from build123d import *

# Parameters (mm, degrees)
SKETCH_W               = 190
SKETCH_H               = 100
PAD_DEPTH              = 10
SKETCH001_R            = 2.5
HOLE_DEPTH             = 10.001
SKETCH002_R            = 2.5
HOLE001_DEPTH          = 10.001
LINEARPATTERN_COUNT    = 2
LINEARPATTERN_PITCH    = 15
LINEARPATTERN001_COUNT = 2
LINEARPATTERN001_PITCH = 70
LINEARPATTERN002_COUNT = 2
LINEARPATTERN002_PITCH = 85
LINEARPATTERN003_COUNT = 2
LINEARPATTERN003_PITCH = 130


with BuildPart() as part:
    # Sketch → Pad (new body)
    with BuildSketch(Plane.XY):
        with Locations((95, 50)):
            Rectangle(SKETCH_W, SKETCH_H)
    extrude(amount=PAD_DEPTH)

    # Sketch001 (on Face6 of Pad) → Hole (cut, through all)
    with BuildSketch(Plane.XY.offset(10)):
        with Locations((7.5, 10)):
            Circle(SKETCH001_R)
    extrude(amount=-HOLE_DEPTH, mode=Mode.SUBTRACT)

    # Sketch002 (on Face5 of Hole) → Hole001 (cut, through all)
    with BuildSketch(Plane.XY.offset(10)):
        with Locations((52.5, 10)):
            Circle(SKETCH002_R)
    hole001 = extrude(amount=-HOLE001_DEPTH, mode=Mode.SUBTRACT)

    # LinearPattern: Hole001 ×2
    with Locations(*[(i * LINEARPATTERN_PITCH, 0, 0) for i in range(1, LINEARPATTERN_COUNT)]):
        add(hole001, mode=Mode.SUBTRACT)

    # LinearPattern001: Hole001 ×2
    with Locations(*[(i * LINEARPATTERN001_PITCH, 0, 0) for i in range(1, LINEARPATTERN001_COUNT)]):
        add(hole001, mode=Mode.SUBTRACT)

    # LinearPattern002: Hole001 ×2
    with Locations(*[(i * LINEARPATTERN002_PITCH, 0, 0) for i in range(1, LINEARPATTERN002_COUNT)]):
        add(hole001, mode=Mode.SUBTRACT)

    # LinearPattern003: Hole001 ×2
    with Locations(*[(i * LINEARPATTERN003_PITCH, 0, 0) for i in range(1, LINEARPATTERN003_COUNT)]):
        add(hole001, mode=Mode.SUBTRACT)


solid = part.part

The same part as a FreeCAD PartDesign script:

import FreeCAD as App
import Part
import Sketcher
from FreeCAD import Vector

doc = App.newDocument("Part")
body = doc.addObject("PartDesign::Body", "Body")

sketch1 = body.newObject("Sketcher::SketchObject", "Sketch")
sketch1.AttachmentSupport = (doc.getObject("XY_Plane"), [""])
sketch1.MapMode = "FlatFace"
sketch1.addGeometry(Part.LineSegment(Vector(0, 100, 0), Vector(0, 0, 0)), False)
sketch1.addGeometry(Part.LineSegment(Vector(0, 0, 0), Vector(190, 0, 0)), False)
sketch1.addGeometry(Part.LineSegment(Vector(190, 0, 0), Vector(190, 100, 0)), False)
sketch1.addGeometry(Part.LineSegment(Vector(190, 100, 0), Vector(0, 100, 0)), False)
sketch1.addConstraint(Sketcher.Constraint("Coincident", 0, 2, 1, 1))
sketch1.addConstraint(Sketcher.Constraint("Coincident", 1, 2, 2, 1))
sketch1.addConstraint(Sketcher.Constraint("Coincident", 2, 2, 3, 1))
sketch1.addConstraint(Sketcher.Constraint("Coincident", 3, 2, 0, 1))
sketch1.addConstraint(Sketcher.Constraint("Vertical", 0))
sketch1.addConstraint(Sketcher.Constraint("Horizontal", 1))
sketch1.addConstraint(Sketcher.Constraint("Vertical", 2))
sketch1.addConstraint(Sketcher.Constraint("Horizontal", 3))
sketch1.addConstraint(Sketcher.Constraint("Coincident", 0, 2, -1, 1))
sketch1.addConstraint(Sketcher.Constraint("DistanceX", 1, 1, 1, 2, 190.0))
sketch1.addConstraint(Sketcher.Constraint("DistanceY", 0, 2, 0, 1, 100.0))
pad1 = body.newObject("PartDesign::Pad", "Pad")
pad1.Profile = sketch1
pad1.Length = 10

sketch2 = body.newObject("Sketcher::SketchObject", "Sketch001")
sketch2.AttachmentSupport = (doc.getObject("XY_Plane"), [""])
sketch2.MapMode = "FlatFace"
sketch2.AttachmentOffset = App.Placement(Vector(0, 0, 10), App.Rotation())
sketch2.addGeometry(Part.Circle(Vector(7.5, 10, 0), Vector(0, 0, 1), 2.5), False)
sketch2.addConstraint(Sketcher.Constraint("Diameter", 0, 5.0))
sketch2.addConstraint(Sketcher.Constraint("DistanceY", -1, 1, 0, 3, 10.0))
sketch2.addConstraint(Sketcher.Constraint("DistanceX", -1, 1, 0, 3, 7.5))
pocket1 = body.newObject("PartDesign::Pocket", "Pocket")
pocket1.Profile = sketch2
pocket1.Type = "ThroughAll"

sketch3 = body.newObject("Sketcher::SketchObject", "Sketch002")
sketch3.AttachmentSupport = (doc.getObject("XY_Plane"), [""])
sketch3.MapMode = "FlatFace"
sketch3.AttachmentOffset = App.Placement(Vector(0, 0, 10), App.Rotation())
sketch3.addGeometry(Part.Circle(Vector(52.5, 10, 0), Vector(0, 0, 1), 2.5), False)
sketch3.addConstraint(Sketcher.Constraint("Diameter", 0, 5.0))
sketch3.addConstraint(Sketcher.Constraint("DistanceY", -1, 1, 0, 3, 10.0))
sketch3.addConstraint(Sketcher.Constraint("DistanceX", -1, 1, 0, 3, 52.5))
pocket2 = body.newObject("PartDesign::Pocket", "Pocket001")
pocket2.Profile = sketch3
pocket2.Type = "ThroughAll"
doc.recompute()

linearpattern = body.newObject("PartDesign::LinearPattern", "LinearPattern")
linearpattern.Originals = [pocket2]
linearpattern.Direction = (doc.getObject("X_Axis"), [""])
linearpattern.Mode = "offset"
linearpattern.Offset = 15
linearpattern.Occurrences = 2
body.Tip = linearpattern
doc.recompute()

linearpattern2 = body.newObject("PartDesign::LinearPattern", "LinearPattern001")
linearpattern2.Originals = [pocket2]
linearpattern2.Direction = (doc.getObject("X_Axis"), [""])
linearpattern2.Mode = "offset"
linearpattern2.Offset = 70
linearpattern2.Occurrences = 2
body.Tip = linearpattern2
doc.recompute()

linearpattern3 = body.newObject("PartDesign::LinearPattern", "LinearPattern002")
linearpattern3.Originals = [pocket2]
linearpattern3.Direction = (doc.getObject("X_Axis"), [""])
linearpattern3.Mode = "offset"
linearpattern3.Offset = 85
linearpattern3.Occurrences = 2
body.Tip = linearpattern3
doc.recompute()

linearpattern4 = body.newObject("PartDesign::LinearPattern", "LinearPattern003")
linearpattern4.Originals = [pocket2]
linearpattern4.Direction = (doc.getObject("X_Axis"), [""])
linearpattern4.Mode = "offset"
linearpattern4.Offset = 130
linearpattern4.Occurrences = 2
body.Tip = linearpattern4

doc.recompute()
